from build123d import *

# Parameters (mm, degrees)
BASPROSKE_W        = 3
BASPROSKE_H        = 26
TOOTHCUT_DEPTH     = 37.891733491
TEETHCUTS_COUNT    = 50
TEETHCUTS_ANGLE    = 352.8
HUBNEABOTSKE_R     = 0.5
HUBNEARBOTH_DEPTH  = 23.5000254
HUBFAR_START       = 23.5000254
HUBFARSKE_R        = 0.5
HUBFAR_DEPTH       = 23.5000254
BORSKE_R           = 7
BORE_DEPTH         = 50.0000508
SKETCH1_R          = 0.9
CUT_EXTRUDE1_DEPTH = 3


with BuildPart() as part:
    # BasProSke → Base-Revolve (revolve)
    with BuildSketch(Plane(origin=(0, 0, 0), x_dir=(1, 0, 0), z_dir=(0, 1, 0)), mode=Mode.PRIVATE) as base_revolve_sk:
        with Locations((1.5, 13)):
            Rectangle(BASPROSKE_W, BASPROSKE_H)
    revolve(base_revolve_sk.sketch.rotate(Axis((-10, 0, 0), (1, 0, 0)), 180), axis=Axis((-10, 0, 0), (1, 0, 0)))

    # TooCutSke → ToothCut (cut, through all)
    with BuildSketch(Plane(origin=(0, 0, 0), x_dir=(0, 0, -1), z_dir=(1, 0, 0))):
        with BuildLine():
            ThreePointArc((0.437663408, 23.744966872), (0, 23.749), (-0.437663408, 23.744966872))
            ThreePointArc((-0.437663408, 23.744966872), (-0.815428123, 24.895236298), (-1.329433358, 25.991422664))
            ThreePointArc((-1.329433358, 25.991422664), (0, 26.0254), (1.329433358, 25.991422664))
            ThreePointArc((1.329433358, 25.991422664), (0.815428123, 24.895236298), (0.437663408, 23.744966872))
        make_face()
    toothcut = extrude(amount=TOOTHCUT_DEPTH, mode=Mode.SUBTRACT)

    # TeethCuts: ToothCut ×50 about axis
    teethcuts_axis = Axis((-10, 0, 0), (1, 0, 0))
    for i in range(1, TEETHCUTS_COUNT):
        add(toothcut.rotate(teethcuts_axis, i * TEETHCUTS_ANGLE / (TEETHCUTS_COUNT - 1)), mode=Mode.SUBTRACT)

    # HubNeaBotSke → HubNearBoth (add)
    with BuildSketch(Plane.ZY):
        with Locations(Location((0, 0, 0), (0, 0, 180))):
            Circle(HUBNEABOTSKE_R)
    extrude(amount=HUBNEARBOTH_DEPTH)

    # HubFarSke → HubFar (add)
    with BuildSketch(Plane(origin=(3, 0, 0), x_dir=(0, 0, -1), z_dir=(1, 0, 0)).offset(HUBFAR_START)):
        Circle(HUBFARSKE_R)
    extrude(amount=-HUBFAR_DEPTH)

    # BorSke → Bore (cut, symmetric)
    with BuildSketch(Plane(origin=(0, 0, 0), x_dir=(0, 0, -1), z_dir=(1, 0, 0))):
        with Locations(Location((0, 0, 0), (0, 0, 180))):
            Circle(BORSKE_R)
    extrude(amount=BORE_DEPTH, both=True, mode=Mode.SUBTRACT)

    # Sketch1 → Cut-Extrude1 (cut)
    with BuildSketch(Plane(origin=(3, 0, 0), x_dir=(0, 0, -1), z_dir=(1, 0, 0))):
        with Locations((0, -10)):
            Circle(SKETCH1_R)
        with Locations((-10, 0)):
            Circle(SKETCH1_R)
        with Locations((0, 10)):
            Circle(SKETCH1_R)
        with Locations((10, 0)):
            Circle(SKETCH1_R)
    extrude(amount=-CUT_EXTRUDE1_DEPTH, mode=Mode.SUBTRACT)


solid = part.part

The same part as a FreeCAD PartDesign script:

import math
import FreeCAD as App
import Part
import Sketcher

doc = App.newDocument("Part")
params = doc.addObject("Spreadsheet::Sheet", "Params")
for row, (alias, value) in enumerate([
    ("sketch1_width", "3 mm"),
    ("sketch1_height", "26 mm"),
    ("revolution_angle", "360 deg"),
    ("sketch2_radius", "10 mm"),
    ("sketch3_diameter", "1 mm"),
    ("pad1_length", "23.500025 mm"),
    ("sketch4_diameter", "1 mm"),
    ("pad2_length", "23.500025 mm"),
    ("sketch5_diameter", "14 mm"),
    ("pocket2_length", "100.000102 mm"),
    ("sketch6_diameter", "1.8 mm"),
    ("pocket3_length", "3 mm"),
], start=1):
    params.set(f"A{row}", alias)
    params.set(f"B{row}", "=" + value)
    params.setAlias(f"B{row}", alias)

body = doc.addObject("PartDesign::Body", "Body")

sketch1 = body.newObject("Sketcher::SketchObject", "Sketch")
sketch1.AttachmentSupport = (doc.getObject("XZ_Plane"), [""])
sketch1.MapMode = "FlatFace"
sketch1.addGeometry([
    Part.LineSegment(App.Vector(0, -26, 0), App.Vector(0, 0, 0)),
    Part.LineSegment(App.Vector(0, 0, 0), App.Vector(3, 0, 0)),
    Part.LineSegment(App.Vector(3, 0, 0), App.Vector(3, -26, 0)),
    Part.LineSegment(App.Vector(3, -26, 0), App.Vector(0, -26, 0)),
], False)
sketch1.addConstraint([
    Sketcher.Constraint("Coincident", 0, 2, 1, 1),
    Sketcher.Constraint("Coincident", 1, 2, 2, 1),
    Sketcher.Constraint("Coincident", 2, 2, 3, 1),
    Sketcher.Constraint("Coincident", 3, 2, 0, 1),
    Sketcher.Constraint("Vertical", 0),
    Sketcher.Constraint("Horizontal", 1),
    Sketcher.Constraint("Vertical", 2),
    Sketcher.Constraint("Horizontal", 3),
    Sketcher.Constraint("Coincident", 0, 2, -1, 1),
    Sketcher.Constraint("DistanceX", 1, 1, 1, 2, 3.0),
    Sketcher.Constraint("DistanceY", 0, 1, 0, 2, 26.0),
])
sketch1.setExpression("Constraints[9]", "Params.sketch1_width")
sketch1.setExpression("Constraints[10]", "Params.sketch1_height")
revolution = body.newObject("PartDesign::Revolution", "Revolution")
revolution.Profile = sketch1
revolution.ReferenceAxis = (sketch1, ["H_Axis"])
revolution.setExpression("Angle", "Params.revolution_angle")

sketch2 = body.newObject("Sketcher::SketchObject", "Sketch001")
sketch2.AttachmentSupport = (doc.getObject("YZ_Plane"), [""])
sketch2.MapMode = "FlatFace"
sketch2.addGeometry([
    Part.ArcOfCircle(Part.Circle(App.Vector(0, 0, 0), App.Vector(0, 0, 1), 23.7), math.radians(-1.06), math.radians(1.06)),
    Part.ArcOfCircle(Part.Circle(App.Vector(21.2, -10.1, 0), App.Vector(0, 0, 1), 10), math.radians(61.41), math.radians(75.29)),
    Part.ArcOfCircle(Part.Circle(App.Vector(0, 0, 0), App.Vector(0, 0, 1), 26), math.radians(-2.93), math.radians(2.93)),
    Part.ArcOfCircle(Part.Circle(App.Vector(21.2, 10.1, 0), App.Vector(0, 0, 1), 10), math.radians(-75.29), math.radians(-61.41)),
], False)
sketch2.addConstraint([
    Sketcher.Constraint("Coincident", 0, 1, 1, 2),
    Sketcher.Constraint("Coincident", 1, 1, 2, 1),
    Sketcher.Constraint("Coincident", 2, 2, 3, 2),
    Sketcher.Constraint("Coincident", 3, 1, 0, 2),
    Sketcher.Constraint("Coincident", 0, 3, -1, 1),
    Sketcher.Constraint("Coincident", 2, 3, -1, 1),
    Sketcher.Constraint("Equal", 1, 3),
    Sketcher.Constraint("Symmetric", 1, 3, 3, 3, -1),
    Sketcher.Constraint("Radius", 1, 10.0),
    Sketcher.Constraint("Radius", 0, 23.749001),
    Sketcher.Constraint("Radius", 2, 26.0254),
    Sketcher.Constraint("DistanceX", -1, 1, 1, 3, 21.20564),
    Sketcher.Constraint("DistanceX", 0, 3, 0, 1, 23.744968),
])
sketch2.setExpression("Constraints[8]", "Params.sketch2_radius")
pocket1 = body.newObject("PartDesign::Pocket", "Pocket")
pocket1.Profile = sketch2
pocket1.Type = "ThroughAll"
pocket1.Reversed = True
doc.recompute()

polarpattern = body.newObject("PartDesign::PolarPattern", "PolarPattern")
polarpattern.Originals = [pocket1]
polarpattern.Axis = (doc.getObject("X_Axis"), [""])
polarpattern.Angle = 360
polarpattern.Occurrences = 50
body.Tip = polarpattern

sketch3 = body.newObject("Sketcher::SketchObject", "Sketch002")
sketch3.AttachmentSupport = (doc.getObject("YZ_Plane"), [""])
sketch3.MapMode = "FlatFace"
sketch3.addGeometry(Part.Circle(App.Vector(0, 0, 0), App.Vector(0, 0, 1), 0.5), False)
sketch3.addConstraint([
    Sketcher.Constraint("Coincident", 0, 3, -1, 1),
    Sketcher.Constraint("Diameter", 0, 1.0),
])
sketch3.setExpression("Constraints[1]", "Params.sketch3_diameter")
pad1 = body.newObject("PartDesign::Pad", "Pad")
pad1.Profile = sketch3
pad1.setExpression("Length", "Params.pad1_length")
pad1.Reversed = True

sketch4 = body.newObject("Sketcher::SketchObject", "Sketch003")
sketch4.AttachmentSupport = (doc.getObject("YZ_Plane"), [""])
sketch4.MapMode = "FlatFace"
sketch4.AttachmentOffset = App.Placement(App.Vector(0, 0, 26.500025), App.Rotation())
sketch4.addGeometry(Part.Circle(App.Vector(0, 0, 0), App.Vector(0, 0, 1), 0.5), False)
sketch4.addConstraint([
    Sketcher.Constraint("Coincident", 0, 3, -1, 1),
    Sketcher.Constraint("Diameter", 0, 1.0),
])
sketch4.setExpression("Constraints[1]", "Params.sketch4_diameter")
pad2 = body.newObject("PartDesign::Pad", "Pad001")
pad2.Profile = sketch4
pad2.setExpression("Length", "Params.pad2_length")
pad2.Reversed = True

sketch5 = body.newObject("Sketcher::SketchObject", "Sketch004")
sketch5.AttachmentSupport = (doc.getObject("YZ_Plane"), [""])
sketch5.MapMode = "FlatFace"
sketch5.addGeometry(Part.Circle(App.Vector(0, 0, 0), App.Vector(0, 0, 1), 7), False)
sketch5.addConstraint([
    Sketcher.Constraint("Coincident", 0, 3, -1, 1),
    Sketcher.Constraint("Diameter", 0, 14.0),
])
sketch5.setExpression("Constraints[1]", "Params.sketch5_diameter")
pocket2 = body.newObject("PartDesign::Pocket", "Pocket001")
pocket2.Profile = sketch5
pocket2.setExpression("Length", "Params.pocket2_length")
pocket2.Midplane = True

sketch6 = body.newObject("Sketcher::SketchObject", "Sketch005")
sketch6.AttachmentSupport = (doc.getObject("YZ_Plane"), [""])
sketch6.MapMode = "FlatFace"
sketch6.AttachmentOffset = App.Placement(App.Vector(0, 0, 3), App.Rotation())
sketch6.addGeometry([
    Part.Circle(App.Vector(-10, 0, 0), App.Vector(0, 0, 1), 0.9),
    Part.Circle(App.Vector(0, 10, 0), App.Vector(0, 0, 1), 0.9),
    Part.Circle(App.Vector(10, 0, 0), App.Vector(0, 0, 1), 0.9),
    Part.Circle(App.Vector(0, -10, 0), App.Vector(0, 0, 1), 0.9),
], False)
sketch6.addConstraint([
    Sketcher.Constraint("Equal", 0, 1),
    Sketcher.Constraint("Equal", 1, 2),
    Sketcher.Constraint("Equal", 2, 3),
    Sketcher.Constraint("Symmetric", 0, 3, 2, 3, -1, 1),
    Sketcher.Constraint("Symmetric", 1, 3, 3, 3, -1, 1),
    Sketcher.Constraint("PointOnObject", 0, 3, -1),
    Sketcher.Constraint("PointOnObject", 1, 3, -2),
    Sketcher.Constraint("Diameter", 0, 1.8),
    Sketcher.Constraint("DistanceX", 0, 3, -1, 1, 10.0),
    Sketcher.Constraint("DistanceY", -1, 1, 1, 3, 10.0),
])
sketch6.setExpression("Constraints[7]", "Params.sketch6_diameter")
pocket3 = body.newObject("PartDesign::Pocket", "Pocket002")
pocket3.Profile = sketch6
pocket3.setExpression("Length", "Params.pocket3_length")

doc.recompute()
